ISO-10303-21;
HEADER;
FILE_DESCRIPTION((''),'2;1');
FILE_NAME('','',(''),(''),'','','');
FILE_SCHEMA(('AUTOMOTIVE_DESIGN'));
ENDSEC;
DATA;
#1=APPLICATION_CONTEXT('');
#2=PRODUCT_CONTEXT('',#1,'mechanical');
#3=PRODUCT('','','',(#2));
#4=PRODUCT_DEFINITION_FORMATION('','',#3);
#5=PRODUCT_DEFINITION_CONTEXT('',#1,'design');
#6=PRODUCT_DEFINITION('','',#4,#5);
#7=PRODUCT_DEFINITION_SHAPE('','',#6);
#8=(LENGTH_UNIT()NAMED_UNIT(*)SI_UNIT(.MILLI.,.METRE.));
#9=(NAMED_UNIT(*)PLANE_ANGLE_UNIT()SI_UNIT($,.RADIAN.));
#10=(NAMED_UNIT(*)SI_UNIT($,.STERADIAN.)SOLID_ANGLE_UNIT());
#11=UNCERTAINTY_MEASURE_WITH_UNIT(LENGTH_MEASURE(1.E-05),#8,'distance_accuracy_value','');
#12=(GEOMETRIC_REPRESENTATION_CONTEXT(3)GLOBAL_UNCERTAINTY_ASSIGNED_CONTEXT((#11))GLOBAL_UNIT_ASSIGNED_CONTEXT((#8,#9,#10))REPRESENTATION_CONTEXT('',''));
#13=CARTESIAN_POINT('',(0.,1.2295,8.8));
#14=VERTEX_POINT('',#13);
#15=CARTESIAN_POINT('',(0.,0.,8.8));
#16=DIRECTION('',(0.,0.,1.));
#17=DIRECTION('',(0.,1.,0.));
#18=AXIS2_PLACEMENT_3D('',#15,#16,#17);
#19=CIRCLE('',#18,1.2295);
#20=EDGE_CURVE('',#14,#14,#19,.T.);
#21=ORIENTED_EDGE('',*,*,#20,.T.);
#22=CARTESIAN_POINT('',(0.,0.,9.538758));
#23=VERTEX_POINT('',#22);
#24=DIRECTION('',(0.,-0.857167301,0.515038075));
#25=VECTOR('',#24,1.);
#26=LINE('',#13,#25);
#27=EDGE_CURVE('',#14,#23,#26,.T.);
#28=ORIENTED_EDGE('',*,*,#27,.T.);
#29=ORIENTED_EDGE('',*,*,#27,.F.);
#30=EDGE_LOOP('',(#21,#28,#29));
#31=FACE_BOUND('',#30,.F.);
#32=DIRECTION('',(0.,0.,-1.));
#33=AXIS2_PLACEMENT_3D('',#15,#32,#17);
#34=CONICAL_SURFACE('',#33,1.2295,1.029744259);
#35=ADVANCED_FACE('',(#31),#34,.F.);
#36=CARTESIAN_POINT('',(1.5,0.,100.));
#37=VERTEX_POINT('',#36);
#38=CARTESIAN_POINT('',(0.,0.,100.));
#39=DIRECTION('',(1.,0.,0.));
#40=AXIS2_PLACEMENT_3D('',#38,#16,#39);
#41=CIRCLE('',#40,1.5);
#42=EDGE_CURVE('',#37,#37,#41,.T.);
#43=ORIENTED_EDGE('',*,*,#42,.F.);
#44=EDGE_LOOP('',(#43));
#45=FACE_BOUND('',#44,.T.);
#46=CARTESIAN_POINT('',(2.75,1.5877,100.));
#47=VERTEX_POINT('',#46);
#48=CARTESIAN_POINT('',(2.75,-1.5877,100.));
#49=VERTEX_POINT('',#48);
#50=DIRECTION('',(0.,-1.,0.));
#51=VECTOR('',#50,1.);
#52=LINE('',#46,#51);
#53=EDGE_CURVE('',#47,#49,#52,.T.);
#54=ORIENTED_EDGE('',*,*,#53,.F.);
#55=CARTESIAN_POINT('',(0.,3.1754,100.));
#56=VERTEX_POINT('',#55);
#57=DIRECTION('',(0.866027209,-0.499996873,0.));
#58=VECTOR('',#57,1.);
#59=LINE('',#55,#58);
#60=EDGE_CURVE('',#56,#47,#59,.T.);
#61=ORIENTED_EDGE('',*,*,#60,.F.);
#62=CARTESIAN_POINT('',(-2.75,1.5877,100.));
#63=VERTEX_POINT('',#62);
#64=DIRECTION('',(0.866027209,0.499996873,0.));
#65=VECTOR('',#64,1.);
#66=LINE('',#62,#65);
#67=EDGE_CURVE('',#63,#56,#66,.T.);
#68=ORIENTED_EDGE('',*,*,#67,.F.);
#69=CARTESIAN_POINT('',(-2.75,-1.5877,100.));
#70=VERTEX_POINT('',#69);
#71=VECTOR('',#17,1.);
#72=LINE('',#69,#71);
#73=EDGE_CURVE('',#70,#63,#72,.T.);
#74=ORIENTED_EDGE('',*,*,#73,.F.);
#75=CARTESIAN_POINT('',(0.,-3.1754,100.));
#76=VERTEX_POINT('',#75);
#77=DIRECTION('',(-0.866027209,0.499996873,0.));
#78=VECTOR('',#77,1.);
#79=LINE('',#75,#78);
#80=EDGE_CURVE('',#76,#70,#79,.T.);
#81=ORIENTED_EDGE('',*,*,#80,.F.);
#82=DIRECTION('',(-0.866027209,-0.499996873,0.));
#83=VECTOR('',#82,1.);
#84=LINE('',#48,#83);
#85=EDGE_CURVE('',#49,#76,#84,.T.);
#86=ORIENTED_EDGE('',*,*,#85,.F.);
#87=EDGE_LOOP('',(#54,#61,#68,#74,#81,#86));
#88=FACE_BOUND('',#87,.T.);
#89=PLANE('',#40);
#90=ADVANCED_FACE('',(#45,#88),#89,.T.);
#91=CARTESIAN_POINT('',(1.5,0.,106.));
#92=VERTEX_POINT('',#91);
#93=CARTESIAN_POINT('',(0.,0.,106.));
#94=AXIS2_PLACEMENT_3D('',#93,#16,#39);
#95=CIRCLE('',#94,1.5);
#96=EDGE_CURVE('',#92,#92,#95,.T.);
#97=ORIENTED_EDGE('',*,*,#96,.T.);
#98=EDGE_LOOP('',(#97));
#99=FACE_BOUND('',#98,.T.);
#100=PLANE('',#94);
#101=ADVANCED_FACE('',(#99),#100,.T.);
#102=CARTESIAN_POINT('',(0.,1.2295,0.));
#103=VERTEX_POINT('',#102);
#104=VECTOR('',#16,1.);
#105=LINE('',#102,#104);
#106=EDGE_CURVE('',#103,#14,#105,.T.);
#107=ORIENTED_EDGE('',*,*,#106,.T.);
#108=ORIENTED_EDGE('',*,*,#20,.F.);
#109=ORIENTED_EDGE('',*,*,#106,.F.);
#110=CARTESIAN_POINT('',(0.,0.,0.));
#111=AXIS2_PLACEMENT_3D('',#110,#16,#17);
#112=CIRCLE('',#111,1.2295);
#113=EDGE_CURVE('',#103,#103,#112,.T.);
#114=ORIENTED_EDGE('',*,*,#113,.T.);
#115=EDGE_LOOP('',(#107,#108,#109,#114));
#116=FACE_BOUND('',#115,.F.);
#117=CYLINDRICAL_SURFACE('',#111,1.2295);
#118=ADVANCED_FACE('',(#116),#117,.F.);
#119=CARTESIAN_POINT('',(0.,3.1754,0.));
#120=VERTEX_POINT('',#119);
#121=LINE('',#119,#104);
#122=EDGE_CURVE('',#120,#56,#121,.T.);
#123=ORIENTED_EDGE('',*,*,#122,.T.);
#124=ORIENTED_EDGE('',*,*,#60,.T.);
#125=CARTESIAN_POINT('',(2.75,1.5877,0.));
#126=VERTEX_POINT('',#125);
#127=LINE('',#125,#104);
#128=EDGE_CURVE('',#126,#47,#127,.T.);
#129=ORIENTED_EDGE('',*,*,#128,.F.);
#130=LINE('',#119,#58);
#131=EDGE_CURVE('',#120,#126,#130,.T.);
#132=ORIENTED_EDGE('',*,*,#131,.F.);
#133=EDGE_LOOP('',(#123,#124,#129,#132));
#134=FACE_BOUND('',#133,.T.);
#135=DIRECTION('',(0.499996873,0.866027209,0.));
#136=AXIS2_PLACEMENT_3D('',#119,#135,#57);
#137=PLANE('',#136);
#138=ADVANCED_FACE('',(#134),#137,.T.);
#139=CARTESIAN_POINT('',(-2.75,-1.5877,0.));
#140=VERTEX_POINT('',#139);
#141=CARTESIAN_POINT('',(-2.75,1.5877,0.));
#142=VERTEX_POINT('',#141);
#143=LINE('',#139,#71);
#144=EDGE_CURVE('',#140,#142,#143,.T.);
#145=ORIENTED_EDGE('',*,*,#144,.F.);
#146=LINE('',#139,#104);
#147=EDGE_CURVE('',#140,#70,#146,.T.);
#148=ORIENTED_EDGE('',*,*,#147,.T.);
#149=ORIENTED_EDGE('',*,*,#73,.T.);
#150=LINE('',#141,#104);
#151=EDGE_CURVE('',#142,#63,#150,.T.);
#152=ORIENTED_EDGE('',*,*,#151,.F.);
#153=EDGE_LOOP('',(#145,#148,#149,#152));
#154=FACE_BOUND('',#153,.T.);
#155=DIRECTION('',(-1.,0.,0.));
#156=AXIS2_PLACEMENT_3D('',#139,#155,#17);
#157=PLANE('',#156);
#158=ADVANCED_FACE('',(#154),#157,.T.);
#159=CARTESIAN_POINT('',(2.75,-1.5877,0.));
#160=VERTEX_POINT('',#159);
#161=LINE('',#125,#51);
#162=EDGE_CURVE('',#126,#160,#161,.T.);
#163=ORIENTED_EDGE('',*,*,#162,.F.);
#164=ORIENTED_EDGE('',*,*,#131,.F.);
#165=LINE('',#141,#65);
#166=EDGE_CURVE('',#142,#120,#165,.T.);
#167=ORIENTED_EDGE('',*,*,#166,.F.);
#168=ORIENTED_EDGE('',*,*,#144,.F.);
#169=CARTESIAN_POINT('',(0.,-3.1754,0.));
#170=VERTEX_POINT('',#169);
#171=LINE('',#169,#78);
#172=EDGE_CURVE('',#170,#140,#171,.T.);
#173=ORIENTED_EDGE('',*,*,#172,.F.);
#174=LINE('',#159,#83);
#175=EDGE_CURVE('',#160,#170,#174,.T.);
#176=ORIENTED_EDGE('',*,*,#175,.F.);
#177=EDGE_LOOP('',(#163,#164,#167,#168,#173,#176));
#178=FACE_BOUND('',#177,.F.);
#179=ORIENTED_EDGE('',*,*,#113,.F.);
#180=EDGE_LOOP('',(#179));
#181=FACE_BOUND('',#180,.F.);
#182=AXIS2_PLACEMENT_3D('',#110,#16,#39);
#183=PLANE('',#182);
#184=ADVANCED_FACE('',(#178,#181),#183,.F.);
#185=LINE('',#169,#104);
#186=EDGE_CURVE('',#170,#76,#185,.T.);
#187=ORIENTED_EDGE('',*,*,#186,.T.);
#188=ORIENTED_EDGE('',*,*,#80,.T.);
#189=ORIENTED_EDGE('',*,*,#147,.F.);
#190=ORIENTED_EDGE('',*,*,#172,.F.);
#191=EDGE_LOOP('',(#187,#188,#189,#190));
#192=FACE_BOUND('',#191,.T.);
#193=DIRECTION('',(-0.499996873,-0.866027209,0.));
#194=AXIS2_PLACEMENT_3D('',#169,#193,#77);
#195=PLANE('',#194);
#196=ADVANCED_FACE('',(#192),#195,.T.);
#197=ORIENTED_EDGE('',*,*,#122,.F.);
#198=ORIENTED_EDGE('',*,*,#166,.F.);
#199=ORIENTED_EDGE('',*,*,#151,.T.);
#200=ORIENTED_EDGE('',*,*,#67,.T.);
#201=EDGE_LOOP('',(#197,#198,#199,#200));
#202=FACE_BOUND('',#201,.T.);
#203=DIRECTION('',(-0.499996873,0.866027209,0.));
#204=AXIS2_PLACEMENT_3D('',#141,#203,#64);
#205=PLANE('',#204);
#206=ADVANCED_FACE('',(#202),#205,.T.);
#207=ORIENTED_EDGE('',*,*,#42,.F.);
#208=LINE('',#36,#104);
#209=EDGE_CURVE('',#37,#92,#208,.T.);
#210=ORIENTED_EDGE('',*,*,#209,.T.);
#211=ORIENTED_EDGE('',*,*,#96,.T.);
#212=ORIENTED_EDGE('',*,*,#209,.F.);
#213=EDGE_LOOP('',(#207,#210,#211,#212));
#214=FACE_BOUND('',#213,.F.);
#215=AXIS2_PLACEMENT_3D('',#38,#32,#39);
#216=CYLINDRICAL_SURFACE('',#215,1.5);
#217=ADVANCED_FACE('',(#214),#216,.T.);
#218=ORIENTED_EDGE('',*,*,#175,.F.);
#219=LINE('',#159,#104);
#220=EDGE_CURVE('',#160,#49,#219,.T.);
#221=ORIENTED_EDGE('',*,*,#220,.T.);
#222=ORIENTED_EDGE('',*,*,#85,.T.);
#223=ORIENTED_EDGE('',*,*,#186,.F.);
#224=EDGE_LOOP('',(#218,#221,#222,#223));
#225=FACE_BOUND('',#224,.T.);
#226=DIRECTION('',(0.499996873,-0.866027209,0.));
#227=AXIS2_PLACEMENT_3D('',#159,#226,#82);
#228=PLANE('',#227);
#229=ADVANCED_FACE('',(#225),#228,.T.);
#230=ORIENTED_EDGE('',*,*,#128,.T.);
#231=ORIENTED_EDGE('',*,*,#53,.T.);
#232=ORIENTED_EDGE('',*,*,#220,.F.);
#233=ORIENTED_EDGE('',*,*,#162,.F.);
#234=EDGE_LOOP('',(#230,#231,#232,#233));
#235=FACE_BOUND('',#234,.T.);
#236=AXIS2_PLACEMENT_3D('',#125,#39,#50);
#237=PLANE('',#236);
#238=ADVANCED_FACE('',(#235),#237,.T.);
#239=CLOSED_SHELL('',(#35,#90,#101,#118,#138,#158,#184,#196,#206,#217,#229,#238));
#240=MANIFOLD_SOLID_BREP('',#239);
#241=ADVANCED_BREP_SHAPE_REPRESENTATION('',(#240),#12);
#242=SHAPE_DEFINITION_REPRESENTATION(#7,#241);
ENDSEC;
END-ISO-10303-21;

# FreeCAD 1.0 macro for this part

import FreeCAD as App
import Part
import Sketcher
Q = App.Units.Quantity

doc = App.newDocument("Part")
body = doc.addObject("PartDesign::Body", "Body")

# Sketch on XY plane
sketch1 = body.newObject("Sketcher::SketchObject", "Sketch")
sketch1.AttachmentSupport = (doc.getObject("XY_Plane"), [""])
sketch1.MapMode = "FlatFace"
sketch1.addGeometry(Part.LineSegment(App.Vector(2.8, 1.6, 0), App.Vector(0, 3.2, 0)), False)
sketch1.addGeometry(Part.LineSegment(App.Vector(0, 3.2, 0), App.Vector(-2.8, 1.6, 0)), False)
sketch1.addGeometry(Part.LineSegment(App.Vector(-2.8, 1.6, 0), App.Vector(-2.8, -1.6, 0)), False)
sketch1.addGeometry(Part.LineSegment(App.Vector(-2.8, -1.6, 0), App.Vector(0, -3.2, 0)), False)
sketch1.addGeometry(Part.LineSegment(App.Vector(0, -3.2, 0), App.Vector(2.8, -1.6, 0)), False)
sketch1.addGeometry(Part.LineSegment(App.Vector(2.8, -1.6, 0), App.Vector(2.8, 1.6, 0)), False)
sketch1.addConstraint(Sketcher.Constraint("Coincident", 0, 2, 1, 1))
sketch1.addConstraint(Sketcher.Constraint("Coincident", 1, 2, 2, 1))
sketch1.addConstraint(Sketcher.Constraint("Coincident", 2, 2, 3, 1))
sketch1.addConstraint(Sketcher.Constraint("Coincident", 3, 2, 4, 1))
sketch1.addConstraint(Sketcher.Constraint("Coincident", 4, 2, 5, 1))
sketch1.addConstraint(Sketcher.Constraint("Coincident", 5, 2, 0, 1))
sketch1.addConstraint(Sketcher.Constraint("Vertical", 2))
sketch1.addConstraint(Sketcher.Constraint("Vertical", 5))
sketch1.addConstraint(Sketcher.Constraint("Symmetric", 0, 2, 3, 2, -1, 1))
sketch1.addConstraint(Sketcher.Constraint("Symmetric", 1, 2, 4, 2, -1, 1))
sketch1.addConstraint(Sketcher.Constraint("PointOnObject", 0, 2, -2))
sketch1.addConstraint(Sketcher.Constraint("Parallel", 0, 3))
sketch1.addConstraint(Sketcher.Constraint("Horizontal", 2, 2, 4, 2))
sketch1.addConstraint(Sketcher.Constraint("DistanceX", 2, 2, 4, 2, Q("5.5 mm")))
sketch1.addConstraint(Sketcher.Constraint("Angle", 0, Q("150.0002 deg")))
sketch1.addConstraint(Sketcher.Constraint("DistanceY", 2, 2, 2, 1, Q("3.1754 mm")))
pad1 = body.newObject("PartDesign::Pad", "Pad")
pad1.Profile = sketch1
pad1.Length = 100

# Sketch on XY plane
sketch2 = body.newObject("Sketcher::SketchObject", "Sketch001")
sketch2.AttachmentSupport = (doc.getObject("XY_Plane"), [""])
sketch2.MapMode = "FlatFace"
sketch2.AttachmentOffset = App.Placement(App.Vector(0, 0, 100), App.Rotation())
sketch2.addGeometry(Part.Circle(App.Vector(0, 0, 0), App.Vector(0, 0, 1), 1.5), False)
sketch2.addConstraint(Sketcher.Constraint("Coincident", 0, 3, -1, 1))
sketch2.addConstraint(Sketcher.Constraint("Diameter", 0, Q("3 mm")))
pad2 = body.newObject("PartDesign::Pad", "Pad001")
pad2.Profile = sketch2
pad2.Length = 6

# Sketch on XY plane
sketch3 = body.newObject("Sketcher::SketchObject", "Sketch002")
sketch3.AttachmentSupport = (doc.getObject("XY_Plane"), [""])
sketch3.MapMode = "FlatFace"
sketch3.addGeometry(Part.Circle(App.Vector(0, 0, 0), App.Vector(0, 0, 1), 1.2), False)
sketch3.addConstraint(Sketcher.Constraint("Coincident", 0, 3, -1, 1))
sketch3.addConstraint(Sketcher.Constraint("Diameter", 0, Q("2.459 mm")))
doc.recompute()
hole = body.newObject("PartDesign::Hole", "Hole")
hole.Profile = sketch3
hole.ThreadType = "None"
hole.Diameter = 2.459
hole.DepthType = "Dimension"
hole.Depth = 8.8
hole.DrillPoint = "Angled"
hole.DrillPointAngle = 118
hole.Reversed = True

doc.recompute()
